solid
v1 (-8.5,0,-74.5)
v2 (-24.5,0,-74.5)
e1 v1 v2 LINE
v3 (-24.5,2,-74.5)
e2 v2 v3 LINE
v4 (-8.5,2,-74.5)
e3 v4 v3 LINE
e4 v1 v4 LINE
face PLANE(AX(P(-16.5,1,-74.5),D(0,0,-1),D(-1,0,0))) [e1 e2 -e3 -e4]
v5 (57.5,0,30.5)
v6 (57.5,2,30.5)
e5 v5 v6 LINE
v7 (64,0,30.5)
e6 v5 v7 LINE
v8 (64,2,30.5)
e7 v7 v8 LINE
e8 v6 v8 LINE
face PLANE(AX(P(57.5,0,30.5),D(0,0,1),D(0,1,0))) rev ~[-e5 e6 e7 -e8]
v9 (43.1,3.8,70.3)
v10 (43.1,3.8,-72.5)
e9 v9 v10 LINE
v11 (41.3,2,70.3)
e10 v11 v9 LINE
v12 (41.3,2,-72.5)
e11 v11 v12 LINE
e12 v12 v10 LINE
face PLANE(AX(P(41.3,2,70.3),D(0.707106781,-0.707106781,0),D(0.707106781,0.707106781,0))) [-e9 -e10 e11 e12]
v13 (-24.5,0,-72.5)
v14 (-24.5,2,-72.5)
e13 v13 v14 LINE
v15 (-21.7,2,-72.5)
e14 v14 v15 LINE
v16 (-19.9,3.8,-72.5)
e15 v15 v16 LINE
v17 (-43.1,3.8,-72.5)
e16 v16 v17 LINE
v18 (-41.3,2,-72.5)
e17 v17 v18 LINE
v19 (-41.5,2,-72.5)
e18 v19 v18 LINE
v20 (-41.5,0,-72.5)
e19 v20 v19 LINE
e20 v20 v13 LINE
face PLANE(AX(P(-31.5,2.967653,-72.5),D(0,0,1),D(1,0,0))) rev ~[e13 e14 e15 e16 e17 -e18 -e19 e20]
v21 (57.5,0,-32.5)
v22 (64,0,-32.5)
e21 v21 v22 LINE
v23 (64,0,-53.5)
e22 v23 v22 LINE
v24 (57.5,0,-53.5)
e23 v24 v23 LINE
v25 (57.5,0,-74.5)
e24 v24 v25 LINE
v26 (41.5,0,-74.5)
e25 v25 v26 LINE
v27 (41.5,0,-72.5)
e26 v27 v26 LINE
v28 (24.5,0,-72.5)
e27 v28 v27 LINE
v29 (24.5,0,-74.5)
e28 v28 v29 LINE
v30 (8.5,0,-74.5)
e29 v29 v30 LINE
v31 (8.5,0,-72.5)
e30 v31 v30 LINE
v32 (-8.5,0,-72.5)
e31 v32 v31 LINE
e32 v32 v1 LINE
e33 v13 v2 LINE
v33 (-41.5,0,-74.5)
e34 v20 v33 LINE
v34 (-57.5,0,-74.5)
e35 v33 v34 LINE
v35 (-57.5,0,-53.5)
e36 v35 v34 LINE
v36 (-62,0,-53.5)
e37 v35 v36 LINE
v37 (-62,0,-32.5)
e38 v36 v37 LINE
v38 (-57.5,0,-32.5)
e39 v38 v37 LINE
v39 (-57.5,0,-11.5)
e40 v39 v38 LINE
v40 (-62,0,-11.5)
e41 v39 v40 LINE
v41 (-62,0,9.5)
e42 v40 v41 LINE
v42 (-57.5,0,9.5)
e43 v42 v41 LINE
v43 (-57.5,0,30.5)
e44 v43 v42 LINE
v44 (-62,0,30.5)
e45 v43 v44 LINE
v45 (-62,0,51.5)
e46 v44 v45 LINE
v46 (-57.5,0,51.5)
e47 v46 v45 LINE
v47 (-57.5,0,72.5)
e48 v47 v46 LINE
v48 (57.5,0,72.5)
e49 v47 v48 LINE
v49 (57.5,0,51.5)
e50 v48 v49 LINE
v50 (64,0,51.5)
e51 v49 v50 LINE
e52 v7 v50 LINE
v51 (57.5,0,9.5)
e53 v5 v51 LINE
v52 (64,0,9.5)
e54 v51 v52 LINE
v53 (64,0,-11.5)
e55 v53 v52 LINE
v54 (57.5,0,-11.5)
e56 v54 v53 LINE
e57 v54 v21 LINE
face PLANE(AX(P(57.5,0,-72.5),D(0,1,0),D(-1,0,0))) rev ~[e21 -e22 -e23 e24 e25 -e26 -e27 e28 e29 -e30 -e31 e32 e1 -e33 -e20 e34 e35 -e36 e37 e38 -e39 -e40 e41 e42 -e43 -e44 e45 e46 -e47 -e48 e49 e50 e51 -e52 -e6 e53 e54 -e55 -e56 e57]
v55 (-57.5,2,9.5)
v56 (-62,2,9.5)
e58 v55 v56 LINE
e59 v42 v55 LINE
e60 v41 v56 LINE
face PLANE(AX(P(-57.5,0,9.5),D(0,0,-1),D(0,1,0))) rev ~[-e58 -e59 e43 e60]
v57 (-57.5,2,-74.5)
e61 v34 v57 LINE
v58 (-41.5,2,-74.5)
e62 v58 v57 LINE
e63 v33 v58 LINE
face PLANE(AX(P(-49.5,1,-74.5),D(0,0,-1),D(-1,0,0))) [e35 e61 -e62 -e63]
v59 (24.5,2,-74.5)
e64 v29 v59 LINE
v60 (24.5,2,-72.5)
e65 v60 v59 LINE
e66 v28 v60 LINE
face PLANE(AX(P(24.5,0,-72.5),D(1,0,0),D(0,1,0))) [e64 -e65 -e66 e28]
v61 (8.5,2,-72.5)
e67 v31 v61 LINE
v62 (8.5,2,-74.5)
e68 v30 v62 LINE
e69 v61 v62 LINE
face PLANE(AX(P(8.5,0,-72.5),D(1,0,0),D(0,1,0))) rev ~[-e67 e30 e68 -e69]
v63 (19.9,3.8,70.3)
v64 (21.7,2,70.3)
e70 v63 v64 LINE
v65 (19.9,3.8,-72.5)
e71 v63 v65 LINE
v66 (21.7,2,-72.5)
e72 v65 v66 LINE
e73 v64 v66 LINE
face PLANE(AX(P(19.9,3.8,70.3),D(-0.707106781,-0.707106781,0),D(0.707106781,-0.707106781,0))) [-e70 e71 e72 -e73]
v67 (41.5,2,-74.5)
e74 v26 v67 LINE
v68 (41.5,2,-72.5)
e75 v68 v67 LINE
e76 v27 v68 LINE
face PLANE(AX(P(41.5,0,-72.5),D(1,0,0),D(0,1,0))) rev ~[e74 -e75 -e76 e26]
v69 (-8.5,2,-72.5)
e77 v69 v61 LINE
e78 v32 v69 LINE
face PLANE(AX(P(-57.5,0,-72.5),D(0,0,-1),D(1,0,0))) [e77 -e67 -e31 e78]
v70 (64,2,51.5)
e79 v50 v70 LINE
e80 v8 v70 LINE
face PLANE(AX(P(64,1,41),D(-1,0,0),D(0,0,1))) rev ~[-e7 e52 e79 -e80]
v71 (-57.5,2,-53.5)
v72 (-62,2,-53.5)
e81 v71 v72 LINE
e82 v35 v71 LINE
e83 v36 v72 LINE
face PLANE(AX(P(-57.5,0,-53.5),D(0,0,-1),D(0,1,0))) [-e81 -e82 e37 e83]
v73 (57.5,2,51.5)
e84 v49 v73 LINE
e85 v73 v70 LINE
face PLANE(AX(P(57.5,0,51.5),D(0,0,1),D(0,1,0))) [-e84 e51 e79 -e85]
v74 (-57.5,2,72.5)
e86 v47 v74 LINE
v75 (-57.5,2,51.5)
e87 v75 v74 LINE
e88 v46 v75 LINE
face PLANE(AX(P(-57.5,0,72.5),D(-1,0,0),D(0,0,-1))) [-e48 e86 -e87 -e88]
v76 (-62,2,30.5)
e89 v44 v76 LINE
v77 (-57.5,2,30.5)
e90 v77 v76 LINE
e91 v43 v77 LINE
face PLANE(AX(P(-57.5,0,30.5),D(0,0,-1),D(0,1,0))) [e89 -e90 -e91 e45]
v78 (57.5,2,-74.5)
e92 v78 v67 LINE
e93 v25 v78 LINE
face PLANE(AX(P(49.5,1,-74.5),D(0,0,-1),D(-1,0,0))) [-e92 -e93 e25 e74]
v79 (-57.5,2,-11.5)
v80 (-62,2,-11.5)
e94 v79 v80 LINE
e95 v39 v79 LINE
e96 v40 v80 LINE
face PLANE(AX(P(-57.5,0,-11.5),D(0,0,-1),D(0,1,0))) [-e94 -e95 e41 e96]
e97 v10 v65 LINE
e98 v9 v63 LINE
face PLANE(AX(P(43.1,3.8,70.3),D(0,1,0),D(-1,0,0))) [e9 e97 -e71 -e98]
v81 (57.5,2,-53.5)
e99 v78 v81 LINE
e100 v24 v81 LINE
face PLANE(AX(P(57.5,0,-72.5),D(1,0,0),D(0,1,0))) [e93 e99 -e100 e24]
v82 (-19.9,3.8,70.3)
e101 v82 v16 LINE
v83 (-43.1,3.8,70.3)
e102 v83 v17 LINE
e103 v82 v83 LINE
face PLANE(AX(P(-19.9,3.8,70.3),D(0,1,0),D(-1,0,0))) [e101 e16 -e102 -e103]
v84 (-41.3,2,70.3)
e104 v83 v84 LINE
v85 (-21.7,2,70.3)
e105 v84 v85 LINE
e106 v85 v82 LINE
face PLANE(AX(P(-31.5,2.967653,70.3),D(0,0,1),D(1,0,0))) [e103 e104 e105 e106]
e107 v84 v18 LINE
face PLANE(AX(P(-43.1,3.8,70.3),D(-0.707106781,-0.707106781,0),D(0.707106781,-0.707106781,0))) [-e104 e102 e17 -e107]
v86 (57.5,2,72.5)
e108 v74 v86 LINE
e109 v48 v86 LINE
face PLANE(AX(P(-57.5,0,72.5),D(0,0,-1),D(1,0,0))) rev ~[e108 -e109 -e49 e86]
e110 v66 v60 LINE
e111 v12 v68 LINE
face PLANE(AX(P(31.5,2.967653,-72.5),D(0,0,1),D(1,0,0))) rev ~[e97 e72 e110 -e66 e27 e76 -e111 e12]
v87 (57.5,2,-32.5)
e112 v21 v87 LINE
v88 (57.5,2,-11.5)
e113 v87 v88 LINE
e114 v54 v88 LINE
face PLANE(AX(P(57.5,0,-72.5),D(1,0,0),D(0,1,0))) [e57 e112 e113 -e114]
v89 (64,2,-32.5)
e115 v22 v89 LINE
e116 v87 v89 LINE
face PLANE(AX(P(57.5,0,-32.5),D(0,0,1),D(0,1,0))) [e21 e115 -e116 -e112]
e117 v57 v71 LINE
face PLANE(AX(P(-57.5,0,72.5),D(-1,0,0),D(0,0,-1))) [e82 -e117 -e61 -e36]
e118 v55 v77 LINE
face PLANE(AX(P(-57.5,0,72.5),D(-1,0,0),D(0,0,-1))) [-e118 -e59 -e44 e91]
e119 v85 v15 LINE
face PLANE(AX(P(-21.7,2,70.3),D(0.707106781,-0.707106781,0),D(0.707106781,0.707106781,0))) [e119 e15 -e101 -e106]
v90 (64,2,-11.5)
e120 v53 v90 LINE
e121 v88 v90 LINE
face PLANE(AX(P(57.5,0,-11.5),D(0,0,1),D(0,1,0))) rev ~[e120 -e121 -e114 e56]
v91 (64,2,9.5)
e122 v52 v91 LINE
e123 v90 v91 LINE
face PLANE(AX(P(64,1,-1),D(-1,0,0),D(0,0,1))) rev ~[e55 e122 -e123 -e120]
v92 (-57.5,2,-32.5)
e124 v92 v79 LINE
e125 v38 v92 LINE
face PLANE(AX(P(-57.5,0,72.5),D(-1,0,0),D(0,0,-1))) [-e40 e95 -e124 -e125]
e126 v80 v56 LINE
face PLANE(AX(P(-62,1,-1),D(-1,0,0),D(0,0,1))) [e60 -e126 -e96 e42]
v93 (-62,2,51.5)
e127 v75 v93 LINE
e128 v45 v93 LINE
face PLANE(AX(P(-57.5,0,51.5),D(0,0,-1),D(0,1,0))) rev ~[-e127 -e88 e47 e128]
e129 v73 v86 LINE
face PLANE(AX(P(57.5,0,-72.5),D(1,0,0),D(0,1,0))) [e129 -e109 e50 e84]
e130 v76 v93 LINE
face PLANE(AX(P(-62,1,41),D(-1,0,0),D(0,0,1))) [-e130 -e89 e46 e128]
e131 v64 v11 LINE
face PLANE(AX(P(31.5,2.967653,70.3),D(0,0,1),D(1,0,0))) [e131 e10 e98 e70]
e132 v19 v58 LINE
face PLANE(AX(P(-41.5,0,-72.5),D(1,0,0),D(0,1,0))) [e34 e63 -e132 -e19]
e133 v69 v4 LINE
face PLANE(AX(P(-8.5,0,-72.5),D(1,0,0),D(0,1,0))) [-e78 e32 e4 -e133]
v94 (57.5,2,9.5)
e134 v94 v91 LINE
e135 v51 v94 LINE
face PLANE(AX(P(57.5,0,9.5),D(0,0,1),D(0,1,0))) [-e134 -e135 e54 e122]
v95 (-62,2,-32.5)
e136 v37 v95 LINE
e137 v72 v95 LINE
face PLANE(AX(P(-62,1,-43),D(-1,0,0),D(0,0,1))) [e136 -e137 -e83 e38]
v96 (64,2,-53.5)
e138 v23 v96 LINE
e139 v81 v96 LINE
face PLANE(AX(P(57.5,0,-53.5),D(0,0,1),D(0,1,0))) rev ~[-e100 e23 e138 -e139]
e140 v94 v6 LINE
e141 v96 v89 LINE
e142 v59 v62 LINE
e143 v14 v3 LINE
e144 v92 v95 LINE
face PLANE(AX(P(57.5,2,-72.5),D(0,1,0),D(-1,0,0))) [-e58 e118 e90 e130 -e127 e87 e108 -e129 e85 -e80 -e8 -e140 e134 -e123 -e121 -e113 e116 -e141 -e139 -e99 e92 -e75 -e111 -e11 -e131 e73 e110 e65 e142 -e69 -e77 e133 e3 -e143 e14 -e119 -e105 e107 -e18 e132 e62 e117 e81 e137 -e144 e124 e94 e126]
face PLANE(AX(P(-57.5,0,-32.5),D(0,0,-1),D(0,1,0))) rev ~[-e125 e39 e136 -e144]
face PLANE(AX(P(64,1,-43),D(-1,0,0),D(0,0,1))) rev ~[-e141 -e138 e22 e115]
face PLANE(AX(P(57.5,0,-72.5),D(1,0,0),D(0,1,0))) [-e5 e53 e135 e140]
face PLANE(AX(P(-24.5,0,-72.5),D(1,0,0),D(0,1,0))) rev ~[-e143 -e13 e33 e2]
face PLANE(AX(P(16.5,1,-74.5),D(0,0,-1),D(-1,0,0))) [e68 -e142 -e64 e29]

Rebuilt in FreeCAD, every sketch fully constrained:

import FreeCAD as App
import Part
import Sketcher
from FreeCAD import Vector


def add_polygon(sketch, points):
    """Adds a closed chain of lines whose ends are joined by coincident constraints."""
    first, n = sketch.GeometryCount, len(points)
    for a, b in zip(points, points[1:] + points[:1]):
        sketch.addGeometry(Part.LineSegment(App.Vector(*a, 0), App.Vector(*b, 0)), False)
    for i in range(n):
        sketch.addConstraint(Sketcher.Constraint("Coincident", first + i, 2, first + (i + 1) % n, 1))

doc = App.newDocument("Part")
body = doc.addObject("PartDesign::Body", "Body")

# Sketch on XZ plane
sketch1 = body.newObject("Sketcher::SketchObject", "Sketch")
sketch1.AttachmentSupport = (doc.getObject("XZ_Plane"), [""])
sketch1.MapMode = "FlatFace"
add_polygon(sketch1, [(-58, -72), (-58, 72), (58, 72), (58, -72)])  # lines 0-3
sketch1.addConstraint([
    Sketcher.Constraint("Vertical", 0),
    Sketcher.Constraint("Horizontal", 1),
    Sketcher.Constraint("Vertical", 2),
    Sketcher.Constraint("Horizontal", 3),
    Sketcher.Constraint("Symmetric", 0, 2, 2, 2, -1, 1),
    Sketcher.Constraint("DistanceX", 1, 1, 1, 2, 115.0),
    Sketcher.Constraint("DistanceY", 0, 1, 0, 2, 145.0),
])
pad1 = body.newObject("PartDesign::Pad", "Pad")
pad1.Profile = sketch1
pad1.Length = 2
pad1.Reversed = True

# Sketch on XY plane
sketch2 = body.newObject("Sketcher::SketchObject", "Sketch001")
sketch2.AttachmentSupport = (doc.getObject("XY_Plane"), [""])
sketch2.MapMode = "FlatFace"
sketch2.AttachmentOffset = App.Placement(Vector(0, 0, -72.5), App.Rotation())
add_polygon(sketch2, [(57.5, 2), (57.5, 0), (41.5, 0), (41.5, 2)])  # lines 0-3
add_polygon(sketch2, [(24.5, 2), (24.5, 0), (8.5, 0), (8.5, 2)])  # lines 4-7
add_polygon(sketch2, [(-8.5, 2), (-8.5, 0), (-24.5, 0), (-24.5, 2)])  # lines 8-11
add_polygon(sketch2, [(-41.5, 2), (-41.5, 0), (-57.5, 0), (-57.5, 2)])  # lines 12-15
sketch2.addConstraint([
    Sketcher.Constraint("Vertical", 0),
    Sketcher.Constraint("Horizontal", 1),
    Sketcher.Constraint("Vertical", 2),
    Sketcher.Constraint("Horizontal", 3),
    Sketcher.Constraint("Vertical", 4),
    Sketcher.Constraint("Horizontal", 5),
    Sketcher.Constraint("Vertical", 6),
    Sketcher.Constraint("Horizontal", 7),
    Sketcher.Constraint("Vertical", 8),
    Sketcher.Constraint("Horizontal", 9),
    Sketcher.Constraint("Vertical", 10),
    Sketcher.Constraint("Horizontal", 11),
    Sketcher.Constraint("Vertical", 12),
    Sketcher.Constraint("Horizontal", 13),
    Sketcher.Constraint("Vertical", 14),
    Sketcher.Constraint("Horizontal", 15),
    Sketcher.Constraint("Symmetric", 5, 2, 8, 2, -1, 1),
    Sketcher.Constraint("Symmetric", 1, 2, 12, 2, -1, 1),
    Sketcher.Constraint("Symmetric", 4, 2, 9, 2, -2),
    Sketcher.Constraint("Symmetric", 0, 2, 13, 2, -2),
    Sketcher.Constraint("Horizontal", 3, 2, 6, 2),
    Sketcher.Constraint("Horizontal", 7, 2, 10, 2),
    Sketcher.Constraint("Horizontal", 11, 2, 14, 2),
    Sketcher.Constraint("Equal", 3, 5),
    Sketcher.Constraint("DistanceX", 1, 2, 1, 1, 16.0),
    Sketcher.Constraint("DistanceY", 0, 2, 0, 1, 2.0),
    Sketcher.Constraint("DistanceX", 4, 2, 1, 2, 17.0),
    Sketcher.Constraint("DistanceX", 8, 2, 5, 2, 17.0),
])
pad2 = body.newObject("PartDesign::Pad", "Pad001")
pad2.Profile = sketch2
pad2.Length = 2
pad2.Reversed = True

# Sketch on YZ plane
sketch3 = body.newObject("Sketcher::SketchObject", "Sketch002")
sketch3.AttachmentSupport = (doc.getObject("YZ_Plane"), [""])
sketch3.MapMode = "FlatFace"
sketch3.AttachmentOffset = App.Placement(Vector(0, 0, -57.5), App.Rotation())
add_polygon(sketch3, [(2, -53.5), (0, -53.5), (0, -32.5), (2, -32.5)])  # lines 0-3
add_polygon(sketch3, [(2, -11.5), (0, -11.5), (0, 9.5), (2, 9.5)])  # lines 4-7
add_polygon(sketch3, [(2, 30.5), (0, 30.5), (0, 51.5), (2, 51.5)])  # lines 8-11
sketch3.addConstraint([
    Sketcher.Constraint("Horizontal", 0),
    Sketcher.Constraint("Vertical", 1),
    Sketcher.Constraint("Horizontal", 2),
    Sketcher.Constraint("Vertical", 3),
    Sketcher.Constraint("Horizontal", 4),
    Sketcher.Constraint("Vertical", 5),
    Sketcher.Constraint("Horizontal", 6),
    Sketcher.Constraint("Vertical", 7),
    Sketcher.Constraint("Horizontal", 8),
    Sketcher.Constraint("Vertical", 9),
    Sketcher.Constraint("Horizontal", 10),
    Sketcher.Constraint("Vertical", 11),
    Sketcher.Constraint("PointOnObject", 0, 2, -2),
    Sketcher.Constraint("PointOnObject", 4, 2, -2),
    Sketcher.Constraint("PointOnObject", 8, 2, -2),
    Sketcher.Constraint("Vertical", 3, 2, 6, 2),
    Sketcher.Constraint("Vertical", 7, 2, 10, 2),
    Sketcher.Constraint("Equal", 3, 5),
    Sketcher.Constraint("Equal", 7, 9),
    Sketcher.Constraint("DistanceX", 0, 2, 0, 1, 2.0),
    Sketcher.Constraint("DistanceY", 1, 1, 1, 2, 21.0),
    Sketcher.Constraint("DistanceY", 1, 2, 4, 2, 21.0),
    Sketcher.Constraint("DistanceY", 5, 2, 8, 2, 21.0),
    Sketcher.Constraint("DistanceY", 0, 2, -1, 1, 53.5),
])
pad3 = body.newObject("PartDesign::Pad", "Pad002")
pad3.Profile = sketch3
pad3.Length = 4.5
pad3.Reversed = True

# Sketch on YZ plane
sketch4 = body.newObject("Sketcher::SketchObject", "Sketch003")
sketch4.AttachmentSupport = (doc.getObject("YZ_Plane"), [""])
sketch4.MapMode = "FlatFace"
sketch4.AttachmentOffset = App.Placement(Vector(0, 0, 57.5), App.Rotation())
add_polygon(sketch4, [(2, -53.5), (0, -53.5), (0, -32.5), (2, -32.5)])  # lines 0-3
add_polygon(sketch4, [(2, -11.5), (0, -11.5), (0, 9.5), (2, 9.5)])  # lines 4-7
add_polygon(sketch4, [(2, 30.5), (0, 30.5), (0, 51.5), (2, 51.5)])  # lines 8-11
sketch4.addConstraint([
    Sketcher.Constraint("Horizontal", 0),
    Sketcher.Constraint("Vertical", 1),
    Sketcher.Constraint("Horizontal", 2),
    Sketcher.Constraint("Vertical", 3),
    Sketcher.Constraint("Horizontal", 4),
    Sketcher.Constraint("Vertical", 5),
    Sketcher.Constraint("Horizontal", 6),
    Sketcher.Constraint("Vertical", 7),
    Sketcher.Constraint("Horizontal", 8),
    Sketcher.Constraint("Vertical", 9),
    Sketcher.Constraint("Horizontal", 10),
    Sketcher.Constraint("Vertical", 11),
    Sketcher.Constraint("PointOnObject", 0, 2, -2),
    Sketcher.Constraint("PointOnObject", 4, 2, -2),
    Sketcher.Constraint("PointOnObject", 8, 2, -2),
    Sketcher.Constraint("Vertical", 3, 2, 6, 2),
    Sketcher.Constraint("Vertical", 7, 2, 10, 2),
    Sketcher.Constraint("Equal", 3, 5),
    Sketcher.Constraint("Equal", 7, 9),
    Sketcher.Constraint("DistanceX", 0, 2, 0, 1, 2.0),
    Sketcher.Constraint("DistanceY", 1, 1, 1, 2, 21.0),
    Sketcher.Constraint("DistanceY", 1, 2, 4, 2, 21.0),
    Sketcher.Constraint("DistanceY", 5, 2, 8, 2, 21.0),
    Sketcher.Constraint("DistanceY", 0, 2, -1, 1, 53.5),
])
pad4 = body.newObject("PartDesign::Pad", "Pad003")
pad4.Profile = sketch4
pad4.Length = 6.5

# Sketch on XY plane
sketch5 = body.newObject("Sketcher::SketchObject", "Sketch004")
sketch5.AttachmentSupport = (doc.getObject("XY_Plane"), [""])
sketch5.MapMode = "FlatFace"
sketch5.AttachmentOffset = App.Placement(Vector(0, 0, 70.3), App.Rotation())
add_polygon(sketch5, [(-43.1, 3.8), (-41.3, 2), (-21.7, 2), (-19.9, 3.8)])  # lines 0-3
add_polygon(sketch5, [(21.7, 2), (41.3, 2), (43.1, 3.8), (19.9, 3.8)])  # lines 4-7
sketch5.addConstraint([
    Sketcher.Constraint("Horizontal", 1),
    Sketcher.Constraint("Horizontal", 3),
    Sketcher.Constraint("Horizontal", 4),
    Sketcher.Constraint("Horizontal", 6),
    Sketcher.Constraint("Symmetric", 0, 2, 4, 2, -2),
    Sketcher.Constraint("Symmetric", 3, 2, 5, 2, -2),
    Sketcher.Constraint("Perpendicular", 0, 2),
    Sketcher.Constraint("Parallel", 2, 5),
    Sketcher.Constraint("Perpendicular", 5, 7),
    Sketcher.Constraint("Equal", 1, 4),
    Sketcher.Constraint("DistanceX", 1, 1, 1, 2, 19.6),
    Sketcher.Constraint("DistanceX", 3, 2, 3, 1, 23.2),
    Sketcher.Constraint("DistanceY", -1, 1, 0, 2, 2.0),
    Sketcher.Constraint("DistanceX", 1, 2, 4, 2, 63.0),
])
pad5 = body.newObject("PartDesign::Pad", "Pad004")
pad5.Profile = sketch5
pad5.Length = 142.8
pad5.Reversed = True

doc.recompute()
